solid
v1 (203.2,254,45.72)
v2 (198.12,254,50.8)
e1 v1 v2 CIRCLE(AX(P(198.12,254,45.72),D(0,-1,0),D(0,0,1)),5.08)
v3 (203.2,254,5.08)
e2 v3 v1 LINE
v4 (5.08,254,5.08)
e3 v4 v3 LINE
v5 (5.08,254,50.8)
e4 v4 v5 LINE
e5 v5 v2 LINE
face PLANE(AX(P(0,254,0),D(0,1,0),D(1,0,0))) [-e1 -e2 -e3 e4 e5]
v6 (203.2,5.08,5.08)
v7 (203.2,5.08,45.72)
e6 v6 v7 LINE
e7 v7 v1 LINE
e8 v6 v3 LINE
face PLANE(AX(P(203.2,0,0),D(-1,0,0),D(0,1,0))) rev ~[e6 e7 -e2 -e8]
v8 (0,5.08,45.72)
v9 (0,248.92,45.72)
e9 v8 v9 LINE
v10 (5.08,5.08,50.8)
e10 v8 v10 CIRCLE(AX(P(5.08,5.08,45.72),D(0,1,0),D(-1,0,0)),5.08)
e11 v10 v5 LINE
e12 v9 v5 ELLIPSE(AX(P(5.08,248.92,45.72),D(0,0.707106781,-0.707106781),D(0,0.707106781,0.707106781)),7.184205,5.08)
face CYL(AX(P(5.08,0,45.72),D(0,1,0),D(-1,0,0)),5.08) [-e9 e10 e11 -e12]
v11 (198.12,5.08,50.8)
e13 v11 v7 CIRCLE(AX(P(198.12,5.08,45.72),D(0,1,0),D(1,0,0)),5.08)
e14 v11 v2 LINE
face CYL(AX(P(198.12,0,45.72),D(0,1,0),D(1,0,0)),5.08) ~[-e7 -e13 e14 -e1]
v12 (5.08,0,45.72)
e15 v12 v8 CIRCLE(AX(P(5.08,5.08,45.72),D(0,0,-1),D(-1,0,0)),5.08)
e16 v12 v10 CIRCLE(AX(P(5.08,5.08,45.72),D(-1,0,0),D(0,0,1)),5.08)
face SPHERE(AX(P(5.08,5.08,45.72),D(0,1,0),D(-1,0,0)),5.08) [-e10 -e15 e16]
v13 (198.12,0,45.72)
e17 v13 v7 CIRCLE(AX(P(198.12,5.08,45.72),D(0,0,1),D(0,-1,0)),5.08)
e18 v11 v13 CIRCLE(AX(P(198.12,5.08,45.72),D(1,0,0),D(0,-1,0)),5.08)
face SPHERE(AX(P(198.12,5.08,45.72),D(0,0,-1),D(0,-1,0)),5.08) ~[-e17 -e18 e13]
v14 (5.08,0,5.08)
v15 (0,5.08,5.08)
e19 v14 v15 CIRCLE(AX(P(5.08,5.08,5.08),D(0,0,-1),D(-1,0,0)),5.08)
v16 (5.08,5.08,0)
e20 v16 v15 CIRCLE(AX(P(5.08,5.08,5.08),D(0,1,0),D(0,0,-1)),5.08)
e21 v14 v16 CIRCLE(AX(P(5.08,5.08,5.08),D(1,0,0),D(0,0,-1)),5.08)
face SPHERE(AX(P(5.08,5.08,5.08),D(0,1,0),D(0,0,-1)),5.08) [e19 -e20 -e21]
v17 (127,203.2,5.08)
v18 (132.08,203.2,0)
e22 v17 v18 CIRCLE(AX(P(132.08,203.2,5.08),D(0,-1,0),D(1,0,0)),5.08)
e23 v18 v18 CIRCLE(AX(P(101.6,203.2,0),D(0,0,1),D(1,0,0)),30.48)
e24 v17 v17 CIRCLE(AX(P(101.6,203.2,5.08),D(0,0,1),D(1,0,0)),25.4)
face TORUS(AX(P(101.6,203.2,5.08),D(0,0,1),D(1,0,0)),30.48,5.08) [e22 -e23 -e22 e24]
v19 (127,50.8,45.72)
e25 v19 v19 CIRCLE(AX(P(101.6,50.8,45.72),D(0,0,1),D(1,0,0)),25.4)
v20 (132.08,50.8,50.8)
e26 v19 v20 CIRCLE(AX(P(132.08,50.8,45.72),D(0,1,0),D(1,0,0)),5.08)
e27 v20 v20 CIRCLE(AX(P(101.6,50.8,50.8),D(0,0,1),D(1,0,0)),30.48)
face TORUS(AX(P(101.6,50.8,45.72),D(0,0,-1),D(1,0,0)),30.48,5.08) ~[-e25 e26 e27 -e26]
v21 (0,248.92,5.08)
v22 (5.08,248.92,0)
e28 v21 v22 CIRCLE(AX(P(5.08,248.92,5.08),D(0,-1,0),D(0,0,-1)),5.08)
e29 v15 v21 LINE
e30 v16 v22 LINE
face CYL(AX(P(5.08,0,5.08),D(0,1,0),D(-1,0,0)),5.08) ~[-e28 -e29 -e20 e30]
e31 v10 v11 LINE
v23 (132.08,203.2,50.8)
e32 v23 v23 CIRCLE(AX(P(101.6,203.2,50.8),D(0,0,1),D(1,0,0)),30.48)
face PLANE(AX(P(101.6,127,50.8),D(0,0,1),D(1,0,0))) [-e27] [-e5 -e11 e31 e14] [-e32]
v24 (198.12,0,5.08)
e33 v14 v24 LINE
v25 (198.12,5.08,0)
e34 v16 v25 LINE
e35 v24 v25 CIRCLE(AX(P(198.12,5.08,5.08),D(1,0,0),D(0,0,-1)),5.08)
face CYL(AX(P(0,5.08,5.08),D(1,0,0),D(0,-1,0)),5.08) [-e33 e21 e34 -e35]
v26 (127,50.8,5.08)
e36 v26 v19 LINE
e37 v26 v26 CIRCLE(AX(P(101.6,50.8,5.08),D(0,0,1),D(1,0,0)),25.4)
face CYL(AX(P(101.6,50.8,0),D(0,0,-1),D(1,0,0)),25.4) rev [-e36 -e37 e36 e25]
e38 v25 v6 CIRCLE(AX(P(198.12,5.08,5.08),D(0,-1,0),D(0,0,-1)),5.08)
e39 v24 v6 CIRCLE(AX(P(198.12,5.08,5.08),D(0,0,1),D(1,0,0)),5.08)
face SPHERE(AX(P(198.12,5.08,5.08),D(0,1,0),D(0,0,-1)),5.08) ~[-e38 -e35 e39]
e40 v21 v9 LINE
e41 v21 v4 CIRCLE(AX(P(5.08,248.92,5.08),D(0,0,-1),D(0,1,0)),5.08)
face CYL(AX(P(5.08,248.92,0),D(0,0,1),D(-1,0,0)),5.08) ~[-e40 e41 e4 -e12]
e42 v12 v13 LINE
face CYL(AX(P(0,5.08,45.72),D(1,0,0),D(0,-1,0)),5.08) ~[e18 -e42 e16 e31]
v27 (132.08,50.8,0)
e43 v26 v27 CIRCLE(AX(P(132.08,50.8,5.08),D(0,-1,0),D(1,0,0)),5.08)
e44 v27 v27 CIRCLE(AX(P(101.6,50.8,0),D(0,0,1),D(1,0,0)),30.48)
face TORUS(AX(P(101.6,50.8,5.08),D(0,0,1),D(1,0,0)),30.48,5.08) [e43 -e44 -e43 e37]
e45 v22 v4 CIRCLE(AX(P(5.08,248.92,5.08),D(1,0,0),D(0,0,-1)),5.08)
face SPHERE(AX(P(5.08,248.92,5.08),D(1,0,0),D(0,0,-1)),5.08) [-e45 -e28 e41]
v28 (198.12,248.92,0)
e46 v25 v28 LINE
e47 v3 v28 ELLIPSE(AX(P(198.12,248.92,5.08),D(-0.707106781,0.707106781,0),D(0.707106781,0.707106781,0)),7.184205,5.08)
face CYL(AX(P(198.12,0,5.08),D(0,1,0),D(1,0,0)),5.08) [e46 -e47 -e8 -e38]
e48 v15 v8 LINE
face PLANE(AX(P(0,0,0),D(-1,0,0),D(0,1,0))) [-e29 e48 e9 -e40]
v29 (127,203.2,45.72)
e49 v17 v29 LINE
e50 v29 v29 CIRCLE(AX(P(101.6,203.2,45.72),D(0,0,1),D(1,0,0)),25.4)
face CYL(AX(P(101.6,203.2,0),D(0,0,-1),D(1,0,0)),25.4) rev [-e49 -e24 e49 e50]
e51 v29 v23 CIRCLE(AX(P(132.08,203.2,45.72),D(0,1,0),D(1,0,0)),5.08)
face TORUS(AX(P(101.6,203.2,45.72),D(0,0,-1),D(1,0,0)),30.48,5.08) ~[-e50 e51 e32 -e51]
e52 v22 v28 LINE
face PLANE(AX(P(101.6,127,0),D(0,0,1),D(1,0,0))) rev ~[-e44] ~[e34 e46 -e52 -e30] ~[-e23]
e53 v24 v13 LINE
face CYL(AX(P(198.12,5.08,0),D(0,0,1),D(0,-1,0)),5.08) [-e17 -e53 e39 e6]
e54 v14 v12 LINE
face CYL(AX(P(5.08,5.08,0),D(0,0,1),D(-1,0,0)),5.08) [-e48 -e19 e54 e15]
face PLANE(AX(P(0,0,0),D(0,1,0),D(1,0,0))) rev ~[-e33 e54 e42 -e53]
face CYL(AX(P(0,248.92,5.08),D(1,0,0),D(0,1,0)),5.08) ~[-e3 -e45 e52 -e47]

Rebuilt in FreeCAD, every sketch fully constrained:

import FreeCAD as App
import Part
import Sketcher
from FreeCAD import Vector
Q = App.Units.Quantity


def edges_at(feature, points):
    """Names of the edges that pass closest to the given points."""
    edges = feature.Shape.Edges
    near = lambda p: min(range(len(edges)), key=lambda i: edges[i].distToShape(Part.Vertex(*p))[0])
    return sorted({f"Edge{near(p) + 1}" for p in points})


def add_polygon(sketch, points):
    """Adds a closed chain of lines whose ends are joined by coincident constraints."""
    first, n = sketch.GeometryCount, len(points)
    for a, b in zip(points, points[1:] + points[:1]):
        sketch.addGeometry(Part.LineSegment(App.Vector(*a, 0), App.Vector(*b, 0)), False)
    for i in range(n):
        sketch.addConstraint(Sketcher.Constraint("Coincident", first + i, 2, first + (i + 1) % n, 1))

doc = App.newDocument("Part")
body = doc.addObject("PartDesign::Body", "Body")

# Sketch on XY plane
sketch1 = body.newObject("Sketcher::SketchObject", "Sketch")
sketch1.AttachmentSupport = (doc.getObject("XY_Plane"), [""])
sketch1.MapMode = "FlatFace"
add_polygon(sketch1, [(0, 254), (0, 0), (203.2, 0), (203.2, 254)])  # lines 0-3
sketch1.addGeometry(Part.Circle(Vector(101.6, 50.8, 0), Vector(0, 0, 1), 25.4), False)  # 4
sketch1.addGeometry(Part.Circle(Vector(101.6, 203.2, 0), Vector(0, 0, 1), 25.4), False)  # 5
sketch1.addConstraint(Sketcher.Constraint("Vertical", 0))
sketch1.addConstraint(Sketcher.Constraint("Horizontal", 1))
sketch1.addConstraint(Sketcher.Constraint("Vertical", 2))
sketch1.addConstraint(Sketcher.Constraint("Horizontal", 3))
sketch1.addConstraint(Sketcher.Constraint("Coincident", 0, 2, -1, 1))
sketch1.addConstraint(Sketcher.Constraint("Equal", 4, 5))
sketch1.addConstraint(Sketcher.Constraint("Vertical", 4, 3, 5, 3))
sketch1.addConstraint(Sketcher.Constraint("Diameter", 4, Q("2 in")))
sketch1.addConstraint(Sketcher.Constraint("DistanceX", 1, 1, 1, 2, Q("8 in")))
sketch1.addConstraint(Sketcher.Constraint("DistanceY", 0, 2, 0, 1, Q("10 in")))
sketch1.addConstraint(Sketcher.Constraint("DistanceX", -1, 1, 4, 3, Q("4 in")))
sketch1.addConstraint(Sketcher.Constraint("DistanceY", -1, 1, 4, 3, Q("2 in")))
sketch1.addConstraint(Sketcher.Constraint("DistanceY", -1, 1, 5, 3, Q("8 in")))
pad1 = body.newObject("PartDesign::Pad", "Pad")
pad1.Profile = sketch1
pad1.Length = Q("2 in")
doc.recompute()

fillet = body.newObject("PartDesign::Fillet", "Fillet")
fillet.Base = (pad1, edges_at(pad1, [
    (101.6, 254, 0),
    (76.2, 203.2, 0),
    (0, 127, 0),
    (0, 127, 50.8),
    (0, 254, 25.4),
    (76.2, 50.8, 0),
    (203.2, 127, 0),
    (101.6, 0, 0),
    (0, 0, 25.4),
    (76.2, 203.2, 50.8),
    (76.2, 50.8, 50.8),
    (203.2, 0, 25.4),
    (101.6, 0, 50.8),
    (203.2, 127, 50.8),
]))
fillet.Radius = Q("0.2 in")

doc.recompute()
